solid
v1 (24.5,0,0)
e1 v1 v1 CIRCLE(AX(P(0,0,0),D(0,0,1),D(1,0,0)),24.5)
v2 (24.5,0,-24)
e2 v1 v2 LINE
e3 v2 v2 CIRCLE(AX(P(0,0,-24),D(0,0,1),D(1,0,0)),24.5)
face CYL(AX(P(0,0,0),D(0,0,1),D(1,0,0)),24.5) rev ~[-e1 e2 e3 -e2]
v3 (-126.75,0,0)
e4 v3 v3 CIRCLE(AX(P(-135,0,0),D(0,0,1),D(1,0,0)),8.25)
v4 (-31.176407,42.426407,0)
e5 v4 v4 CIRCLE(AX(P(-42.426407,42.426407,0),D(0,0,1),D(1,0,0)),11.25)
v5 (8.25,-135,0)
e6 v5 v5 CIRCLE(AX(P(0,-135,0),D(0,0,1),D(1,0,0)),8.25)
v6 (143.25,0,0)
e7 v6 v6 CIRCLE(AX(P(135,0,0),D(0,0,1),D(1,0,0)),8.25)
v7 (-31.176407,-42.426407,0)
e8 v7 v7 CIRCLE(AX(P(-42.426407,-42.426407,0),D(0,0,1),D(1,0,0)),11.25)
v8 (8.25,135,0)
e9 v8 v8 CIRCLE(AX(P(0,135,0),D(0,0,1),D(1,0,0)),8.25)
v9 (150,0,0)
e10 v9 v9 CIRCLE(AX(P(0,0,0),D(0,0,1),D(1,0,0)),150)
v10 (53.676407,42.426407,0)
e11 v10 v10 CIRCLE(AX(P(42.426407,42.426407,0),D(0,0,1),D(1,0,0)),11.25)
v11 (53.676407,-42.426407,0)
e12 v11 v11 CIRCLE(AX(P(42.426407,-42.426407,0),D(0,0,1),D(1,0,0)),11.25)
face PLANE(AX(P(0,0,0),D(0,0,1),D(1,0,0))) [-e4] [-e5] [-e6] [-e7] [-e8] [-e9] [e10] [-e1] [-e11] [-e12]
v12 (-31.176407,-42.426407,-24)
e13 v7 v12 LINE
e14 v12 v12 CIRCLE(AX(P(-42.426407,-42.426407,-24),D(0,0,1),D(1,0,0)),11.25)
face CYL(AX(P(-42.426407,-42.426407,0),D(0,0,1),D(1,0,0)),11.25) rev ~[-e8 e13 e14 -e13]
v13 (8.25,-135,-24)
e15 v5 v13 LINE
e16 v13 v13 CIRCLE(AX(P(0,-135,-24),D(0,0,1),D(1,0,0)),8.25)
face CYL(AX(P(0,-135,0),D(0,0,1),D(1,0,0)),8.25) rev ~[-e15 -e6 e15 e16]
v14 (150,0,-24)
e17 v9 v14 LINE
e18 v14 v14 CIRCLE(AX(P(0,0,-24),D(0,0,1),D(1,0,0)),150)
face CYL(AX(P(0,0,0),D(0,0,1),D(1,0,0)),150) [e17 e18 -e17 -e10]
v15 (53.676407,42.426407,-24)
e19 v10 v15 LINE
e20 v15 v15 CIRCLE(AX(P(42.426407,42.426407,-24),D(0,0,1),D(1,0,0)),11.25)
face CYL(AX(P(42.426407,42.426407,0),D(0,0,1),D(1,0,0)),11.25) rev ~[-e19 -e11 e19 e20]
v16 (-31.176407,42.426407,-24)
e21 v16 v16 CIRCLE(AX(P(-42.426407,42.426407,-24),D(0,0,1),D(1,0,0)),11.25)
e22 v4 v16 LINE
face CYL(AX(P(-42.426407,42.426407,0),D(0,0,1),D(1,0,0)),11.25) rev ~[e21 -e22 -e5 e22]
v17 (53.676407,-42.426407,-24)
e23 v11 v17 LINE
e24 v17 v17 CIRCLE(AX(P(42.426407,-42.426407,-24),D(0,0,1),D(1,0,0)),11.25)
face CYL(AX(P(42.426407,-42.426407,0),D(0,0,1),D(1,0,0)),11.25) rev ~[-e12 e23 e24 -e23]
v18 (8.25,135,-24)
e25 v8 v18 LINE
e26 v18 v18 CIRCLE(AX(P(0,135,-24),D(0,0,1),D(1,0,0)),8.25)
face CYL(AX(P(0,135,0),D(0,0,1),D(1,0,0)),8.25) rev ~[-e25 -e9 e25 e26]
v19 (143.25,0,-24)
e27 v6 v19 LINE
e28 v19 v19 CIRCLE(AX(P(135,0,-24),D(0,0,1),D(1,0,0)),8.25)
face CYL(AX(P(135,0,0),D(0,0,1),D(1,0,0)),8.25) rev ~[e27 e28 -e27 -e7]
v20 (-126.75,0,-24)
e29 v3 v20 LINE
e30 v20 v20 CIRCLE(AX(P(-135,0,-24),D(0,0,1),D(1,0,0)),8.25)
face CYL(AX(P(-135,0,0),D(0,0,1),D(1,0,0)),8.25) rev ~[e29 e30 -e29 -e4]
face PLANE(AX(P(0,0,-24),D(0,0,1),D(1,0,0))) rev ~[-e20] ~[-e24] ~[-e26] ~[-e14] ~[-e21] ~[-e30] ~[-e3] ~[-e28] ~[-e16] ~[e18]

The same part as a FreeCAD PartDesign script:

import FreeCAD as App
import Part
import Sketcher
from FreeCAD import Vector
Q = App.Units.Quantity

doc = App.newDocument("Part")
params = doc.addObject("Spreadsheet::Sheet", "Params")
for row, (alias, value) in enumerate([
    ("sketch1_diameter", "300 mm"),
    ("sketch1_diameter2", "49 mm"),
    ("sketch1_diameter3", "22.5 mm"),
    ("sketch1_diameter4", "16.5 mm"),
    ("pad1_length", "24 mm"),
], start=1):
    params.set(f"A{row}", alias)
    params.set(f"B{row}", "=" + value)
    params.setAlias(f"B{row}", alias)

body = doc.addObject("PartDesign::Body", "Body")

# Sketch on XY plane
sketch1 = doc.addObject("Sketcher::SketchObject", "Sketch")
body.addObject(sketch1)
sketch1.AttachmentSupport = (doc.XY_Plane, [""])
sketch1.MapMode = "FlatFace"
sketch1.addGeometry([
    Part.Circle(Vector(0, 0, 0), Vector(0, 0, 1), 150),  # 0
    Part.Circle(Vector(-42, -42, 0), Vector(0, 0, 1), 11),  # 1
    Part.Circle(Vector(0, -135, 0), Vector(0, 0, 1), 8),  # 2
    Part.Circle(Vector(42, -42, 0), Vector(0, 0, 1), 11),  # 3
    Part.Circle(Vector(-135, 0, 0), Vector(0, 0, 1), 8),  # 4
    Part.Circle(Vector(-42, 42, 0), Vector(0, 0, 1), 11),  # 5
    Part.Circle(Vector(0, 0, 0), Vector(0, 0, 1), 24),  # 6
    Part.Circle(Vector(42, 42, 0), Vector(0, 0, 1), 11),  # 7
    Part.Circle(Vector(135, 0, 0), Vector(0, 0, 1), 8),  # 8
    Part.Circle(Vector(0, 135, 0), Vector(0, 0, 1), 8),  # 9
], False)
sketch1.addConstraint([
    Sketcher.Constraint("Coincident", 0, 3, -1, 1),
    Sketcher.Constraint("Coincident", 6, 3, -1, 1),
    Sketcher.Constraint("Equal", 1, 3),
    Sketcher.Constraint("Equal", 2, 4),
    Sketcher.Constraint("Equal", 3, 5),
    Sketcher.Constraint("Equal", 5, 7),
    Sketcher.Constraint("Equal", 4, 8),
    Sketcher.Constraint("Equal", 8, 9),
    Sketcher.Constraint("Symmetric", 3, 3, 5, 3, -1, 1),
    Sketcher.Constraint("Symmetric", 1, 3, 7, 3, -1, 1),
    Sketcher.Constraint("Symmetric", 4, 3, 8, 3, -1, 1),
    Sketcher.Constraint("Symmetric", 2, 3, 9, 3, -1, 1),
    Sketcher.Constraint("Symmetric", 1, 3, 3, 3, -2),
    Sketcher.Constraint("PointOnObject", 2, 3, -2),
    Sketcher.Constraint("PointOnObject", 4, 3, -1),
    Sketcher.Constraint("Diameter", 0, Q("300 mm")),
    Sketcher.Constraint("Diameter", 6, Q("49 mm")),
    Sketcher.Constraint("Diameter", 1, Q("22.5 mm")),
    Sketcher.Constraint("Diameter", 2, Q("16.5 mm")),
    Sketcher.Constraint("DistanceY", 2, 3, -1, 1, Q("135 mm")),
    Sketcher.Constraint("DistanceX", 4, 3, -1, 1, Q("135 mm")),
    Sketcher.Constraint("DistanceX", 1, 3, -1, 1, Q("42.426407 mm")),
    Sketcher.Constraint("DistanceY", 1, 3, -1, 1, Q("42.426407 mm")),
])
sketch1.setExpression("Constraints[15]", "Params.sketch1_diameter")
sketch1.setExpression("Constraints[16]", "Params.sketch1_diameter2")
sketch1.setExpression("Constraints[17]", "Params.sketch1_diameter3")
sketch1.setExpression("Constraints[18]", "Params.sketch1_diameter4")
pad1 = doc.addObject("PartDesign::Pad", "Pad")
body.addObject(pad1)
pad1.Profile = sketch1
pad1.setExpression("Length", "Params.pad1_length")
pad1.Reversed = True

doc.recompute()
